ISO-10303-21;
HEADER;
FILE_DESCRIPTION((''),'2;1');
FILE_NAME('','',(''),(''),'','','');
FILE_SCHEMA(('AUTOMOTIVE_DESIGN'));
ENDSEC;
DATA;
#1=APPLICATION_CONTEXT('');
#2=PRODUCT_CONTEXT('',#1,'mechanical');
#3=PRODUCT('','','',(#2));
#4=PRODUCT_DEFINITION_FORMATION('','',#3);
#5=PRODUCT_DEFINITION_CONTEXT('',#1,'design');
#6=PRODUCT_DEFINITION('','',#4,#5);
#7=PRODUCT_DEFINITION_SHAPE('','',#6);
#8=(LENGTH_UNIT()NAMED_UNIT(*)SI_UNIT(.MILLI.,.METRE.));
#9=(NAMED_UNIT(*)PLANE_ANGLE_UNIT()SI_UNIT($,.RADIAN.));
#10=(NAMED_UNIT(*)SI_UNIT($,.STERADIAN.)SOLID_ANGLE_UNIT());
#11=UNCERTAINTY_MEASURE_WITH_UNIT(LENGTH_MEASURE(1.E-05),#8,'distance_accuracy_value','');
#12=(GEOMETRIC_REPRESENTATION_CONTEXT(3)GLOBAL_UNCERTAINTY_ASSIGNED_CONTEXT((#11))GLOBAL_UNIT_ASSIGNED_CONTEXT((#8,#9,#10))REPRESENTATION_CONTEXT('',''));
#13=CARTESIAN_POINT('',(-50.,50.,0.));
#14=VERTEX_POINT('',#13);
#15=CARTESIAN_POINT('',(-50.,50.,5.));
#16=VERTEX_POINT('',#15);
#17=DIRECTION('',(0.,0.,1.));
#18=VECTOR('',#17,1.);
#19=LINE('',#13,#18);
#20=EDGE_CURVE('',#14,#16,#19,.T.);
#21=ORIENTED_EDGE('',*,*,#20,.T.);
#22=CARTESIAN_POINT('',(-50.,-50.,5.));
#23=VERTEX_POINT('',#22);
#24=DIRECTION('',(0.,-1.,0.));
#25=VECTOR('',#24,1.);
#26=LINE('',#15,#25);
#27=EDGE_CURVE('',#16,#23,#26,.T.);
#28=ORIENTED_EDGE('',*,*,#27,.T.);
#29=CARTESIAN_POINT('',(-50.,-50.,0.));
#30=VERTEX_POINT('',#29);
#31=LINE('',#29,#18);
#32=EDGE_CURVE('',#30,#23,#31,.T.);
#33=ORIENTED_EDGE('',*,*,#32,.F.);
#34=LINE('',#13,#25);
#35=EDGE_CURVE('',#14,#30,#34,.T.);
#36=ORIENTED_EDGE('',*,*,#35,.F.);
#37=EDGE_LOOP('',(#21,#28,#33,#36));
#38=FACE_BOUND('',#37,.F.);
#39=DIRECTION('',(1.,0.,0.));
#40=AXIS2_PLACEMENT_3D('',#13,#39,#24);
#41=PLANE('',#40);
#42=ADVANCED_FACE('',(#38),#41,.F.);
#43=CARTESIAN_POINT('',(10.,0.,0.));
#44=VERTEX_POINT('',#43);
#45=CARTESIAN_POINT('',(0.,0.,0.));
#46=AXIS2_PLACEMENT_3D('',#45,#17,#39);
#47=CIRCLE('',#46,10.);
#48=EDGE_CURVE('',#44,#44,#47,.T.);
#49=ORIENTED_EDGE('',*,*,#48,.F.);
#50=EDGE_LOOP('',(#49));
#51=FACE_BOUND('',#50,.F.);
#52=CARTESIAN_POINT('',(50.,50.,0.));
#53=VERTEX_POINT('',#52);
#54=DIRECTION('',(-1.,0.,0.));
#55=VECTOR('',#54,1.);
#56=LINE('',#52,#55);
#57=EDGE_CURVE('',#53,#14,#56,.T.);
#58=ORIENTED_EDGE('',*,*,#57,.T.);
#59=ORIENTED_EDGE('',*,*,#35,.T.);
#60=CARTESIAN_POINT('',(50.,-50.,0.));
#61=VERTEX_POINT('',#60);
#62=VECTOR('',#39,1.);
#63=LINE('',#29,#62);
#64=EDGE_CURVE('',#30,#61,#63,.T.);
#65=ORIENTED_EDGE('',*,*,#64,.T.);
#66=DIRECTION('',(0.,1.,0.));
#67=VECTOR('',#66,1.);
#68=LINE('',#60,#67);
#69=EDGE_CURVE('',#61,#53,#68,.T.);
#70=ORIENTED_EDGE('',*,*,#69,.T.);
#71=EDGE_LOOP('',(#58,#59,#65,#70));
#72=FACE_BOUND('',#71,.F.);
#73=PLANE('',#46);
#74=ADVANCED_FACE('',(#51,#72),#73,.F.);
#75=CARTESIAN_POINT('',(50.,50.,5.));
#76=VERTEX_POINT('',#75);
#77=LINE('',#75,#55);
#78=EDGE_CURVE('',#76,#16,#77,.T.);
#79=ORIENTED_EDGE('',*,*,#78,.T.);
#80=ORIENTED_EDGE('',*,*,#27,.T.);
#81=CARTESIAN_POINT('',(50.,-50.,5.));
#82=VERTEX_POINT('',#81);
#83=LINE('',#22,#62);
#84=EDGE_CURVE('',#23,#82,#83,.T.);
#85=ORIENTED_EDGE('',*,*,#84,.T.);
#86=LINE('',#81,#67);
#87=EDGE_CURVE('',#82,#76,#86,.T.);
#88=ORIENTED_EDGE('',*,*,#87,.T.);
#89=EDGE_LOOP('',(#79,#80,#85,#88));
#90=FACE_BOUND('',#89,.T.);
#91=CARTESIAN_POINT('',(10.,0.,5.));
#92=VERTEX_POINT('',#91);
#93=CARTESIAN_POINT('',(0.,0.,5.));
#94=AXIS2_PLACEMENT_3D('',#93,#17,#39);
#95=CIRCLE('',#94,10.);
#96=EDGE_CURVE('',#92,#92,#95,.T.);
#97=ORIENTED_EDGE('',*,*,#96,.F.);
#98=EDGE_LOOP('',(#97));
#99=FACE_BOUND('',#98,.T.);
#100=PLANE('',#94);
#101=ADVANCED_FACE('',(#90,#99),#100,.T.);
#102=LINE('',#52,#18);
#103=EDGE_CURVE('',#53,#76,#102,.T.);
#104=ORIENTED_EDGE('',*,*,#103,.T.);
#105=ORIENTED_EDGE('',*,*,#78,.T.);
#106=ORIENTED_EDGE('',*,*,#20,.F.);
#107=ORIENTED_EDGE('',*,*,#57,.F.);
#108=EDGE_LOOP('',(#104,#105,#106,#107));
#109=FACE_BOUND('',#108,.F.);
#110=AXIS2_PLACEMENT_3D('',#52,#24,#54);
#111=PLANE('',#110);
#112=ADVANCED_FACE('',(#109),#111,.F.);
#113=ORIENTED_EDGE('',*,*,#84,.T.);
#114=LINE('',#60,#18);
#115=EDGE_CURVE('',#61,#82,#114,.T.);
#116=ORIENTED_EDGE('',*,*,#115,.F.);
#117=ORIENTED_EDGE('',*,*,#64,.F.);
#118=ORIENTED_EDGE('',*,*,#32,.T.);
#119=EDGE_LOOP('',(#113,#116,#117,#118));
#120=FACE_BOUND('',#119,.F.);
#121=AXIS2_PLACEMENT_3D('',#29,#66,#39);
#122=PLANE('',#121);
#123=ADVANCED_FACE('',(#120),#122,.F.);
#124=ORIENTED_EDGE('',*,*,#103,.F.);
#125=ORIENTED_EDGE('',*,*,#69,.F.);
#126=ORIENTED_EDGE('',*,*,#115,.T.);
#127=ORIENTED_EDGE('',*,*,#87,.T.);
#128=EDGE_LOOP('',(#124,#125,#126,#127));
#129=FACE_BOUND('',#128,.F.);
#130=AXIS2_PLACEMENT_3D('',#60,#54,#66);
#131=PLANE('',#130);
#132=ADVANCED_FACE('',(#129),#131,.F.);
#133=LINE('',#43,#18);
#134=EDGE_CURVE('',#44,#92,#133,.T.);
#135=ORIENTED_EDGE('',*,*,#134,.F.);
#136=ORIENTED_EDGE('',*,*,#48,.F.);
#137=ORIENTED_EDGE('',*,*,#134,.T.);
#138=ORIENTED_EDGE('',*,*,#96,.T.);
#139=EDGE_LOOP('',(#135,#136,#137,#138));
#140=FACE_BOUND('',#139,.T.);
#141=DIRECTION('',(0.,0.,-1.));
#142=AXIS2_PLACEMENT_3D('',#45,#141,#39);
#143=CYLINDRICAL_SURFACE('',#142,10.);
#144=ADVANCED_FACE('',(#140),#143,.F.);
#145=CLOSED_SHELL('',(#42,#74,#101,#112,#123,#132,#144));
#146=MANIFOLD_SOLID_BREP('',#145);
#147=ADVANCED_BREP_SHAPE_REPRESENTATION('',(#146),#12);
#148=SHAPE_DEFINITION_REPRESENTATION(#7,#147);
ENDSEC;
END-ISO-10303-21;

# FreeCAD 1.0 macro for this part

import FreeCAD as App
import Part
import Sketcher

V = App.Vector
Q = App.Units.Quantity

doc = App.newDocument("Part")
body = doc.addObject("PartDesign::Body", "Body")

sketch1 = body.newObject("Sketcher::SketchObject", "Sketch")
sketch1.AttachmentSupport = (doc.getObject("XY_Plane"), [""])
sketch1.MapMode = "FlatFace"
sketch1.addGeometry([
    Part.LineSegment(V(-50, 50, 0), V(-50, -50, 0)),
    Part.LineSegment(V(-50, -50, 0), V(50, -50, 0)),
    Part.LineSegment(V(50, -50, 0), V(50, 50, 0)),
    Part.LineSegment(V(50, 50, 0), V(-50, 50, 0)),
    Part.Circle(V(0, 0, 0), V(0, 0, 1), 10),
], False)
sketch1.addConstraint([
    Sketcher.Constraint("Coincident", 0, 2, 1, 1),
    Sketcher.Constraint("Coincident", 1, 2, 2, 1),
    Sketcher.Constraint("Coincident", 2, 2, 3, 1),
    Sketcher.Constraint("Coincident", 3, 2, 0, 1),
    Sketcher.Constraint("Vertical", 0),
    Sketcher.Constraint("Horizontal", 1),
    Sketcher.Constraint("Vertical", 2),
    Sketcher.Constraint("Horizontal", 3),
    Sketcher.Constraint("Coincident", 4, 3, -1, 1),
    Sketcher.Constraint("Symmetric", 0, 2, 2, 2, -1, 1),
    Sketcher.Constraint("Equal", 3, 0),
    Sketcher.Constraint("Diameter", 4, Q("20 mm")),
    Sketcher.Constraint("DistanceX", 1, 1, 1, 2, Q("100 mm")),
])
pad1 = body.newObject("PartDesign::Pad", "Pad")
pad1.Profile = sketch1
pad1.Length = 5

doc.recompute()
